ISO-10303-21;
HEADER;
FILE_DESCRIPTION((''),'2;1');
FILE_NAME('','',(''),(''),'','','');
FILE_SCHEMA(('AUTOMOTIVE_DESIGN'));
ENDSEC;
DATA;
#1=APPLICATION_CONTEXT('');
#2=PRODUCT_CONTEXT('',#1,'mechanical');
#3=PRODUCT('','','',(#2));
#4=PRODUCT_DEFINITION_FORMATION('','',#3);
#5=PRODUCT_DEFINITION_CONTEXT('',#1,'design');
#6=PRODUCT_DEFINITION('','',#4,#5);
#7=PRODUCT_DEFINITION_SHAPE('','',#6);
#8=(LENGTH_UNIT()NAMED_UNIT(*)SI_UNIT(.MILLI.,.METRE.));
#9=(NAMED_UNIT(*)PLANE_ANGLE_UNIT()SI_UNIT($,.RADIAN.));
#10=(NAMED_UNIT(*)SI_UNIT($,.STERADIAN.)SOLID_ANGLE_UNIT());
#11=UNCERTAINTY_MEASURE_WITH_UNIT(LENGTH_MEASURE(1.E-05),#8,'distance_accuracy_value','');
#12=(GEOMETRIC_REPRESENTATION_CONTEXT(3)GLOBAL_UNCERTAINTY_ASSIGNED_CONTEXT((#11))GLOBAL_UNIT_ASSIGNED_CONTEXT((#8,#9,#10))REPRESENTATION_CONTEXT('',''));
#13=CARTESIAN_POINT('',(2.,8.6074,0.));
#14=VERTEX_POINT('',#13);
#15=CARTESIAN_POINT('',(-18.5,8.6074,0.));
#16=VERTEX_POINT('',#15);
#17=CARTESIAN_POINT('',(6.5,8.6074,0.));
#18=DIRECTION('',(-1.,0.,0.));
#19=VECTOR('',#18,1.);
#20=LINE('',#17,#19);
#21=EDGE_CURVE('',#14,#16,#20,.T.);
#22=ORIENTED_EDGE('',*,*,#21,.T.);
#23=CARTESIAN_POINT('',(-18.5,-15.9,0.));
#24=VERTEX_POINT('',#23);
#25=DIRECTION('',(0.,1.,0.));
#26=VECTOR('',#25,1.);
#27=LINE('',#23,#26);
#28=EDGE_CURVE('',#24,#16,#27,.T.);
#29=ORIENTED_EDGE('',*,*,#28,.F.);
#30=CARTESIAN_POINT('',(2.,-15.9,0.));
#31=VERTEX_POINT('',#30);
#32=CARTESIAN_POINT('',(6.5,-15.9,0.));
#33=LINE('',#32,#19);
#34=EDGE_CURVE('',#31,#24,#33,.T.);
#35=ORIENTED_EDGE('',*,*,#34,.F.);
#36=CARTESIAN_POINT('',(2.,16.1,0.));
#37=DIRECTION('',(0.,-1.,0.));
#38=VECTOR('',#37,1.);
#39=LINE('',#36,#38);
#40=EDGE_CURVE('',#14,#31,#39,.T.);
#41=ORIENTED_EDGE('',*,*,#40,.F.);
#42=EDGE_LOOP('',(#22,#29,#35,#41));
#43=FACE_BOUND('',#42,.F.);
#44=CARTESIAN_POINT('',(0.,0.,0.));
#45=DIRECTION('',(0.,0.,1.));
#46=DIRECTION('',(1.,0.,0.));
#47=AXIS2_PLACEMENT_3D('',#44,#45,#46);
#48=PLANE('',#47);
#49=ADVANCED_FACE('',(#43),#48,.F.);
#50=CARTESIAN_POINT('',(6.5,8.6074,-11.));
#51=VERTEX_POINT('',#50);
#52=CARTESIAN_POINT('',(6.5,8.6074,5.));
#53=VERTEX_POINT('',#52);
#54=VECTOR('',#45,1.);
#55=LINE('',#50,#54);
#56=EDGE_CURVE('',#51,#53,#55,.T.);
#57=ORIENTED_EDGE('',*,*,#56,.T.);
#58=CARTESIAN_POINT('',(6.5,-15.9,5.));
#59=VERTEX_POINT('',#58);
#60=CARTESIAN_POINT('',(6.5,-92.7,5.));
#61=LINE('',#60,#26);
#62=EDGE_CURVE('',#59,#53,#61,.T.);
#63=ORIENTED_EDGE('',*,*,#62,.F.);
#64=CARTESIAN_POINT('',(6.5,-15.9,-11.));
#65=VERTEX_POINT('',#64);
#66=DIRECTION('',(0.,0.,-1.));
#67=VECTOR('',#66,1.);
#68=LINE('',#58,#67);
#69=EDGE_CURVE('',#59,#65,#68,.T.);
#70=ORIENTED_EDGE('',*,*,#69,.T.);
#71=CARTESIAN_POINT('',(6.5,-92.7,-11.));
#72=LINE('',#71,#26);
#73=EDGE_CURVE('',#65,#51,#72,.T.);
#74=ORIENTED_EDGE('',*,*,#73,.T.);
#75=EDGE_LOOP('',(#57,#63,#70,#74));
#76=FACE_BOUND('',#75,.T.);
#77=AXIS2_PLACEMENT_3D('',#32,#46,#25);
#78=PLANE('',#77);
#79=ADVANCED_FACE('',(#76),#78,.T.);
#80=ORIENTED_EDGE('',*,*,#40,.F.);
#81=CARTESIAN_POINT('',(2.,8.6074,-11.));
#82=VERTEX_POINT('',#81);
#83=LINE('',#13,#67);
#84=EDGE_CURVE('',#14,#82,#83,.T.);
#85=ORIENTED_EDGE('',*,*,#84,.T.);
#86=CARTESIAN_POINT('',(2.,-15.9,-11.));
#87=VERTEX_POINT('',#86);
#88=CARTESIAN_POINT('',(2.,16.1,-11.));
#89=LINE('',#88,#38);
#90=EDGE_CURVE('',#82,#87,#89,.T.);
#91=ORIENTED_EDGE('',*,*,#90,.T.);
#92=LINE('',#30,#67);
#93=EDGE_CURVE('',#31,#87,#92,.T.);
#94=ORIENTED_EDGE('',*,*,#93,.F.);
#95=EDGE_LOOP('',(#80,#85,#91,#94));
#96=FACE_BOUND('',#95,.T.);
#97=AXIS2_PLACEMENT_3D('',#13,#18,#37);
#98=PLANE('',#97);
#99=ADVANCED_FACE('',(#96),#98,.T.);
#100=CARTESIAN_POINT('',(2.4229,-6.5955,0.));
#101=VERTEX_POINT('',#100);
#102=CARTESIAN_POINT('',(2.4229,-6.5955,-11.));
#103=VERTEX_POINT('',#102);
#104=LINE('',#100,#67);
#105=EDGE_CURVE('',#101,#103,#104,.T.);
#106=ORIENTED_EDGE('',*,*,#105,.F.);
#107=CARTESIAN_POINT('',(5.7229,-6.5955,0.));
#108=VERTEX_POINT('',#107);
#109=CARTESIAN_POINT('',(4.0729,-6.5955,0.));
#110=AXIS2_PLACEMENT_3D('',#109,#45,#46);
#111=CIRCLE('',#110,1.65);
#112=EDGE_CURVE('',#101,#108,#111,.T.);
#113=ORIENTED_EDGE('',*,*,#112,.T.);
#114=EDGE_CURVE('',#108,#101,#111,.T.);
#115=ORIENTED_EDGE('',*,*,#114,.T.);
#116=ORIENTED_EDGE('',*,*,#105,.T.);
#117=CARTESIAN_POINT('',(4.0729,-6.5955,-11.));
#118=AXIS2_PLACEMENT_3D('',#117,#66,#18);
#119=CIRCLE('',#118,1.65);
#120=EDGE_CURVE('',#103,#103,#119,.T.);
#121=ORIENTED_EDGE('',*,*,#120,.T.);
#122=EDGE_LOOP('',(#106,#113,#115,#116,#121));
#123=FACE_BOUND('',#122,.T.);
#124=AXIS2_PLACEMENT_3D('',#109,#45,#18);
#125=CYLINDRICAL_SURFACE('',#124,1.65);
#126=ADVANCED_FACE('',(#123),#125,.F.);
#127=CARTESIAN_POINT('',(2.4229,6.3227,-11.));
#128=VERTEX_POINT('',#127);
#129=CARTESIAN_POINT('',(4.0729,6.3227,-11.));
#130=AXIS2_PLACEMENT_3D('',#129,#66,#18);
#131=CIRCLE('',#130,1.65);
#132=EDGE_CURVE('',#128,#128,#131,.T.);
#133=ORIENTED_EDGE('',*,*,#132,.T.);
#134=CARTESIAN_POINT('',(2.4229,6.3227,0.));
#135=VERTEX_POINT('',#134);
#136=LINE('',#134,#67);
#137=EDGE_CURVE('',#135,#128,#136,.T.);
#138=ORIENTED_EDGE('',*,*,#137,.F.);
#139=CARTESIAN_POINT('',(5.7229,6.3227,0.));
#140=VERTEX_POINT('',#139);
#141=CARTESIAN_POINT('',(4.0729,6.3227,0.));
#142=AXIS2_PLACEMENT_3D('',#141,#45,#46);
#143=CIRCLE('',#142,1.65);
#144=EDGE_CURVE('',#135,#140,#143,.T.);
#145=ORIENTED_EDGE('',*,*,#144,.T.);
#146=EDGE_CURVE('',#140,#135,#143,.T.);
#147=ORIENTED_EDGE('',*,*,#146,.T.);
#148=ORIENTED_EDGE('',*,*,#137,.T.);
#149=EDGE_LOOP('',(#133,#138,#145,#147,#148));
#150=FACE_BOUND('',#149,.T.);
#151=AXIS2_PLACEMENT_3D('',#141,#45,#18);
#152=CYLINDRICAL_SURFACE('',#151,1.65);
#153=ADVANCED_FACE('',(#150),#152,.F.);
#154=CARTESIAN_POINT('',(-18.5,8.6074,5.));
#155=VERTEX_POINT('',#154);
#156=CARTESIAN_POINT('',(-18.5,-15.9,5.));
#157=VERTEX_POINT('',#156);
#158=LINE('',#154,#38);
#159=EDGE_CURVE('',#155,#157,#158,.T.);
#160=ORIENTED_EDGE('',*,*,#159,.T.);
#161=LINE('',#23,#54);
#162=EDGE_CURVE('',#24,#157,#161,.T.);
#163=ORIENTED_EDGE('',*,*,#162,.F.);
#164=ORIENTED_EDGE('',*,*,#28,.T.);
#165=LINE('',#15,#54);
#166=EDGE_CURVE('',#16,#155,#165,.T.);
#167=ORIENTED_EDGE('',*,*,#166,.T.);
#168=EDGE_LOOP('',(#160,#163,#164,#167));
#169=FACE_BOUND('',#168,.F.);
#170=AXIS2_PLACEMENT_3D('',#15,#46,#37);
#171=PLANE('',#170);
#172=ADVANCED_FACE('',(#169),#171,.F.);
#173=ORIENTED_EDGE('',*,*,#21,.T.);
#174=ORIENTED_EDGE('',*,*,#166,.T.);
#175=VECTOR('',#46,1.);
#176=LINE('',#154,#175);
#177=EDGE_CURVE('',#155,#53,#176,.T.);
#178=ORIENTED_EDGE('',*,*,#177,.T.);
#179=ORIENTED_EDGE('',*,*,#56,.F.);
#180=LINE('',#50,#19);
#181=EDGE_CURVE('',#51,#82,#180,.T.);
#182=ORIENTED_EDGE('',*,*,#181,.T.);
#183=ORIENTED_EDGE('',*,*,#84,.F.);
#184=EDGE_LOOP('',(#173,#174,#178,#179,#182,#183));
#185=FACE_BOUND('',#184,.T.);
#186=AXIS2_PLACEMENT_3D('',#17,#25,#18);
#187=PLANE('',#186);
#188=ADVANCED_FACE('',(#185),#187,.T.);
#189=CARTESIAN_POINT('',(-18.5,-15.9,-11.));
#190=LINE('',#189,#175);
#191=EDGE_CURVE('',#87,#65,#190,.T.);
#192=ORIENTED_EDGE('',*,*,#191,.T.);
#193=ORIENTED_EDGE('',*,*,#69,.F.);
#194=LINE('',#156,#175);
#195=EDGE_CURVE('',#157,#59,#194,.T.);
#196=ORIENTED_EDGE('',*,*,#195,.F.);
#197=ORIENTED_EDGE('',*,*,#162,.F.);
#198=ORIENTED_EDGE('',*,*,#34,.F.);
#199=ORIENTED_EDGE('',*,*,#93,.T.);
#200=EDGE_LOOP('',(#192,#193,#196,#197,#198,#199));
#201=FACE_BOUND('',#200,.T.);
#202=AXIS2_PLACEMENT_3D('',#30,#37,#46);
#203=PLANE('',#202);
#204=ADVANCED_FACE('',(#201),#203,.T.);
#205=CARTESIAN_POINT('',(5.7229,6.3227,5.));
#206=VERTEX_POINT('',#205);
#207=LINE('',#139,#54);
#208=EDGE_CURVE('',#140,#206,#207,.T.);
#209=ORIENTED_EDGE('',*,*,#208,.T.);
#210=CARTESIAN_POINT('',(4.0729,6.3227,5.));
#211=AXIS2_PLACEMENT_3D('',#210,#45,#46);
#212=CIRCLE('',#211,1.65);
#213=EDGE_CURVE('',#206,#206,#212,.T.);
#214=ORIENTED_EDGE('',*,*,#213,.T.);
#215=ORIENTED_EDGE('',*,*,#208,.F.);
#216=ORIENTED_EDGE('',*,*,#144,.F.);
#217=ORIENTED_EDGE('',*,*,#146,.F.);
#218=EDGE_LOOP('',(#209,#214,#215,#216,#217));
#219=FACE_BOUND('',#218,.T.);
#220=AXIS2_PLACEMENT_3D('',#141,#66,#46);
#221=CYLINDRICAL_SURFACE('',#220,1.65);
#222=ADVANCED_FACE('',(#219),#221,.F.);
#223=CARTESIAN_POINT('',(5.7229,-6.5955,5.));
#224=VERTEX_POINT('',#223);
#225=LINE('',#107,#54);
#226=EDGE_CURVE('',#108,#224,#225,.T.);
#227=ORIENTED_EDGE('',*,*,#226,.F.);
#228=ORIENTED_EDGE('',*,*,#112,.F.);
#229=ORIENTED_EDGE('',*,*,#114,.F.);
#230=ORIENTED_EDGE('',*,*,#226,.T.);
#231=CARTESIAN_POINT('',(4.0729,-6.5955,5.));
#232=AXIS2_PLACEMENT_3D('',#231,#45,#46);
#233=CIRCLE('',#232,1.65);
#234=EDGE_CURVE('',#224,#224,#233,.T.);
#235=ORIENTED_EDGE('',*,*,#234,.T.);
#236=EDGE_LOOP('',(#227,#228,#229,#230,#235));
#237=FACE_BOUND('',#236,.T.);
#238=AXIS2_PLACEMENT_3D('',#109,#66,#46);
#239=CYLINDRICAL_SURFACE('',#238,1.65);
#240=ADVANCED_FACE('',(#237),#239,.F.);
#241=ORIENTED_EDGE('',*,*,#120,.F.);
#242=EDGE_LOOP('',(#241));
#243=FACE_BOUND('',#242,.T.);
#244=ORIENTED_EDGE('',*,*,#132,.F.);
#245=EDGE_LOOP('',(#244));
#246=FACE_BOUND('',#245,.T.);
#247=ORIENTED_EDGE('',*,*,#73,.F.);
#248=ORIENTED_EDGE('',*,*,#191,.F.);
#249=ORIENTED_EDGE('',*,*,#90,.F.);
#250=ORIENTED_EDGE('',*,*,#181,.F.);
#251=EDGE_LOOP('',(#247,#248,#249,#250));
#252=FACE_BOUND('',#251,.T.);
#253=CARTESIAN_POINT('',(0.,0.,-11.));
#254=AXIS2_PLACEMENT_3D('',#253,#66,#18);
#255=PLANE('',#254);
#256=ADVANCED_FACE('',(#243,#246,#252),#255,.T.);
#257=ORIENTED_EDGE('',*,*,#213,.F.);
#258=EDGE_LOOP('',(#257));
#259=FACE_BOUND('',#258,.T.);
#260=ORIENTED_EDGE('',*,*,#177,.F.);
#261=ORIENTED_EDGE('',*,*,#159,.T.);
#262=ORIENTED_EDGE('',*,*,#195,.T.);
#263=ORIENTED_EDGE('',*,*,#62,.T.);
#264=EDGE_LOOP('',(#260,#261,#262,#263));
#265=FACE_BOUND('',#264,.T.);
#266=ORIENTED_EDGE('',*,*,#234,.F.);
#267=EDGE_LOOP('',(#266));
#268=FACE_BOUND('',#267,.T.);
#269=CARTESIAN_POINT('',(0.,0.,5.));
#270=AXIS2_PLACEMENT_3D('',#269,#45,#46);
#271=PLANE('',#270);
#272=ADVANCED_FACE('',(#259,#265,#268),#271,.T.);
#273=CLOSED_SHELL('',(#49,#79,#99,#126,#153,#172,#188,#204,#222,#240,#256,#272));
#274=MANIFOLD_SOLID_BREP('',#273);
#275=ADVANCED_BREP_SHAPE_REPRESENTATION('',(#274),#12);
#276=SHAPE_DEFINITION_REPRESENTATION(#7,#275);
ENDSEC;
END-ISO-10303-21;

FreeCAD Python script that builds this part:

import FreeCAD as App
import Part
import Sketcher
from FreeCAD import Vector
Q = App.Units.Quantity


def add_polygon(sketch, points):
    """Adds a closed chain of lines whose ends are joined by coincident constraints."""
    first, n = sketch.GeometryCount, len(points)
    for a, b in zip(points, points[1:] + points[:1]):
        sketch.addGeometry(Part.LineSegment(App.Vector(*a, 0), App.Vector(*b, 0)), False)
    for i in range(n):
        sketch.addConstraint(Sketcher.Constraint("Coincident", first + i, 2, first + (i + 1) % n, 1))

doc = App.newDocument("Part")
body = doc.addObject("PartDesign::Body", "Body")

sketch1 = body.newObject("Sketcher::SketchObject", "Sketch")
sketch1.AttachmentSupport = (doc.getObject("XY_Plane"), [""])
sketch1.MapMode = "FlatFace"
add_polygon(sketch1, [(6.5, 8.6074), (-18.5, 8.6074), (-18.5, -15.9), (6.5, -15.9)])
sketch1.addGeometry(Part.Circle(Vector(4.0729, -6.5955, 0), Vector(0, 0, 1), 1.65), False)
sketch1.addGeometry(Part.Circle(Vector(4.0729, 6.3227, 0), Vector(0, 0, 1), 1.65), False)
sketch1.addConstraint([
    Sketcher.Constraint("Horizontal", 0),
    Sketcher.Constraint("Vertical", 1),
    Sketcher.Constraint("Horizontal", 2),
    Sketcher.Constraint("Vertical", 3),
    Sketcher.Constraint("Equal", 4, 5),
    Sketcher.Constraint("Vertical", 4, 3, 5, 3),
    Sketcher.Constraint("Diameter", 4, Q("3.3 mm")),
    Sketcher.Constraint("DistanceX", 0, 2, 0, 1, Q("25 mm")),
    Sketcher.Constraint("DistanceX", 0, 2, -1, 1, Q("18.5 mm")),
    Sketcher.Constraint("DistanceY", 1, 2, -1, 1, Q("15.9 mm")),
    Sketcher.Constraint("DistanceY", 1, 2, 1, 1, Q("24.5074 mm")),
    Sketcher.Constraint("DistanceX", -1, 1, 4, 3, Q("4.073 mm")),
    Sketcher.Constraint("DistanceY", 4, 3, 0, 2, Q("15.203 mm")),
    Sketcher.Constraint("DistanceY", -1, 1, 5, 3, Q("6.3227 mm")),
])
pad1 = body.newObject("PartDesign::Pad", "Pad")
pad1.Profile = sketch1
pad1.Length = 5

sketch2 = body.newObject("Sketcher::SketchObject", "Sketch001")
sketch2.AttachmentSupport = (doc.getObject("XY_Plane"), [""])
sketch2.MapMode = "FlatFace"
add_polygon(sketch2, [(6.5, 8.6074), (6.5, -15.9), (2, -15.9), (2, 8.6074)])
sketch2.addGeometry(Part.Circle(Vector(4.0729, -6.5955, 0), Vector(0, 0, 1), 1.65), False)
sketch2.addGeometry(Part.Circle(Vector(4.0729, 6.3227, 0), Vector(0, 0, 1), 1.65), False)
sketch2.addConstraint([
    Sketcher.Constraint("Vertical", 0),
    Sketcher.Constraint("Horizontal", 1),
    Sketcher.Constraint("Vertical", 2),
    Sketcher.Constraint("Horizontal", 3),
    Sketcher.Constraint("Equal", 4, 5),
    Sketcher.Constraint("Vertical", 4, 3, 5, 3),
    Sketcher.Constraint("Diameter", 4, Q("3.3 mm")),
    Sketcher.Constraint("DistanceX", 1, 2, 1, 1, Q("4.5 mm")),
    Sketcher.Constraint("DistanceX", -1, 1, 1, 2, Q("2 mm")),
    Sketcher.Constraint("DistanceY", 0, 2, -1, 1, Q("15.9 mm")),
    Sketcher.Constraint("DistanceY", 0, 2, 0, 1, Q("24.5074 mm")),
    Sketcher.Constraint("DistanceX", -1, 1, 4, 3, Q("4.073 mm")),
    Sketcher.Constraint("DistanceY", 4, 3, 2, 2, Q("15.203 mm")),
    Sketcher.Constraint("DistanceY", -1, 1, 5, 3, Q("6.3227 mm")),
])
pad2 = body.newObject("PartDesign::Pad", "Pad001")
pad2.Profile = sketch2
pad2.Length = 11
pad2.Reversed = True

doc.recompute()
